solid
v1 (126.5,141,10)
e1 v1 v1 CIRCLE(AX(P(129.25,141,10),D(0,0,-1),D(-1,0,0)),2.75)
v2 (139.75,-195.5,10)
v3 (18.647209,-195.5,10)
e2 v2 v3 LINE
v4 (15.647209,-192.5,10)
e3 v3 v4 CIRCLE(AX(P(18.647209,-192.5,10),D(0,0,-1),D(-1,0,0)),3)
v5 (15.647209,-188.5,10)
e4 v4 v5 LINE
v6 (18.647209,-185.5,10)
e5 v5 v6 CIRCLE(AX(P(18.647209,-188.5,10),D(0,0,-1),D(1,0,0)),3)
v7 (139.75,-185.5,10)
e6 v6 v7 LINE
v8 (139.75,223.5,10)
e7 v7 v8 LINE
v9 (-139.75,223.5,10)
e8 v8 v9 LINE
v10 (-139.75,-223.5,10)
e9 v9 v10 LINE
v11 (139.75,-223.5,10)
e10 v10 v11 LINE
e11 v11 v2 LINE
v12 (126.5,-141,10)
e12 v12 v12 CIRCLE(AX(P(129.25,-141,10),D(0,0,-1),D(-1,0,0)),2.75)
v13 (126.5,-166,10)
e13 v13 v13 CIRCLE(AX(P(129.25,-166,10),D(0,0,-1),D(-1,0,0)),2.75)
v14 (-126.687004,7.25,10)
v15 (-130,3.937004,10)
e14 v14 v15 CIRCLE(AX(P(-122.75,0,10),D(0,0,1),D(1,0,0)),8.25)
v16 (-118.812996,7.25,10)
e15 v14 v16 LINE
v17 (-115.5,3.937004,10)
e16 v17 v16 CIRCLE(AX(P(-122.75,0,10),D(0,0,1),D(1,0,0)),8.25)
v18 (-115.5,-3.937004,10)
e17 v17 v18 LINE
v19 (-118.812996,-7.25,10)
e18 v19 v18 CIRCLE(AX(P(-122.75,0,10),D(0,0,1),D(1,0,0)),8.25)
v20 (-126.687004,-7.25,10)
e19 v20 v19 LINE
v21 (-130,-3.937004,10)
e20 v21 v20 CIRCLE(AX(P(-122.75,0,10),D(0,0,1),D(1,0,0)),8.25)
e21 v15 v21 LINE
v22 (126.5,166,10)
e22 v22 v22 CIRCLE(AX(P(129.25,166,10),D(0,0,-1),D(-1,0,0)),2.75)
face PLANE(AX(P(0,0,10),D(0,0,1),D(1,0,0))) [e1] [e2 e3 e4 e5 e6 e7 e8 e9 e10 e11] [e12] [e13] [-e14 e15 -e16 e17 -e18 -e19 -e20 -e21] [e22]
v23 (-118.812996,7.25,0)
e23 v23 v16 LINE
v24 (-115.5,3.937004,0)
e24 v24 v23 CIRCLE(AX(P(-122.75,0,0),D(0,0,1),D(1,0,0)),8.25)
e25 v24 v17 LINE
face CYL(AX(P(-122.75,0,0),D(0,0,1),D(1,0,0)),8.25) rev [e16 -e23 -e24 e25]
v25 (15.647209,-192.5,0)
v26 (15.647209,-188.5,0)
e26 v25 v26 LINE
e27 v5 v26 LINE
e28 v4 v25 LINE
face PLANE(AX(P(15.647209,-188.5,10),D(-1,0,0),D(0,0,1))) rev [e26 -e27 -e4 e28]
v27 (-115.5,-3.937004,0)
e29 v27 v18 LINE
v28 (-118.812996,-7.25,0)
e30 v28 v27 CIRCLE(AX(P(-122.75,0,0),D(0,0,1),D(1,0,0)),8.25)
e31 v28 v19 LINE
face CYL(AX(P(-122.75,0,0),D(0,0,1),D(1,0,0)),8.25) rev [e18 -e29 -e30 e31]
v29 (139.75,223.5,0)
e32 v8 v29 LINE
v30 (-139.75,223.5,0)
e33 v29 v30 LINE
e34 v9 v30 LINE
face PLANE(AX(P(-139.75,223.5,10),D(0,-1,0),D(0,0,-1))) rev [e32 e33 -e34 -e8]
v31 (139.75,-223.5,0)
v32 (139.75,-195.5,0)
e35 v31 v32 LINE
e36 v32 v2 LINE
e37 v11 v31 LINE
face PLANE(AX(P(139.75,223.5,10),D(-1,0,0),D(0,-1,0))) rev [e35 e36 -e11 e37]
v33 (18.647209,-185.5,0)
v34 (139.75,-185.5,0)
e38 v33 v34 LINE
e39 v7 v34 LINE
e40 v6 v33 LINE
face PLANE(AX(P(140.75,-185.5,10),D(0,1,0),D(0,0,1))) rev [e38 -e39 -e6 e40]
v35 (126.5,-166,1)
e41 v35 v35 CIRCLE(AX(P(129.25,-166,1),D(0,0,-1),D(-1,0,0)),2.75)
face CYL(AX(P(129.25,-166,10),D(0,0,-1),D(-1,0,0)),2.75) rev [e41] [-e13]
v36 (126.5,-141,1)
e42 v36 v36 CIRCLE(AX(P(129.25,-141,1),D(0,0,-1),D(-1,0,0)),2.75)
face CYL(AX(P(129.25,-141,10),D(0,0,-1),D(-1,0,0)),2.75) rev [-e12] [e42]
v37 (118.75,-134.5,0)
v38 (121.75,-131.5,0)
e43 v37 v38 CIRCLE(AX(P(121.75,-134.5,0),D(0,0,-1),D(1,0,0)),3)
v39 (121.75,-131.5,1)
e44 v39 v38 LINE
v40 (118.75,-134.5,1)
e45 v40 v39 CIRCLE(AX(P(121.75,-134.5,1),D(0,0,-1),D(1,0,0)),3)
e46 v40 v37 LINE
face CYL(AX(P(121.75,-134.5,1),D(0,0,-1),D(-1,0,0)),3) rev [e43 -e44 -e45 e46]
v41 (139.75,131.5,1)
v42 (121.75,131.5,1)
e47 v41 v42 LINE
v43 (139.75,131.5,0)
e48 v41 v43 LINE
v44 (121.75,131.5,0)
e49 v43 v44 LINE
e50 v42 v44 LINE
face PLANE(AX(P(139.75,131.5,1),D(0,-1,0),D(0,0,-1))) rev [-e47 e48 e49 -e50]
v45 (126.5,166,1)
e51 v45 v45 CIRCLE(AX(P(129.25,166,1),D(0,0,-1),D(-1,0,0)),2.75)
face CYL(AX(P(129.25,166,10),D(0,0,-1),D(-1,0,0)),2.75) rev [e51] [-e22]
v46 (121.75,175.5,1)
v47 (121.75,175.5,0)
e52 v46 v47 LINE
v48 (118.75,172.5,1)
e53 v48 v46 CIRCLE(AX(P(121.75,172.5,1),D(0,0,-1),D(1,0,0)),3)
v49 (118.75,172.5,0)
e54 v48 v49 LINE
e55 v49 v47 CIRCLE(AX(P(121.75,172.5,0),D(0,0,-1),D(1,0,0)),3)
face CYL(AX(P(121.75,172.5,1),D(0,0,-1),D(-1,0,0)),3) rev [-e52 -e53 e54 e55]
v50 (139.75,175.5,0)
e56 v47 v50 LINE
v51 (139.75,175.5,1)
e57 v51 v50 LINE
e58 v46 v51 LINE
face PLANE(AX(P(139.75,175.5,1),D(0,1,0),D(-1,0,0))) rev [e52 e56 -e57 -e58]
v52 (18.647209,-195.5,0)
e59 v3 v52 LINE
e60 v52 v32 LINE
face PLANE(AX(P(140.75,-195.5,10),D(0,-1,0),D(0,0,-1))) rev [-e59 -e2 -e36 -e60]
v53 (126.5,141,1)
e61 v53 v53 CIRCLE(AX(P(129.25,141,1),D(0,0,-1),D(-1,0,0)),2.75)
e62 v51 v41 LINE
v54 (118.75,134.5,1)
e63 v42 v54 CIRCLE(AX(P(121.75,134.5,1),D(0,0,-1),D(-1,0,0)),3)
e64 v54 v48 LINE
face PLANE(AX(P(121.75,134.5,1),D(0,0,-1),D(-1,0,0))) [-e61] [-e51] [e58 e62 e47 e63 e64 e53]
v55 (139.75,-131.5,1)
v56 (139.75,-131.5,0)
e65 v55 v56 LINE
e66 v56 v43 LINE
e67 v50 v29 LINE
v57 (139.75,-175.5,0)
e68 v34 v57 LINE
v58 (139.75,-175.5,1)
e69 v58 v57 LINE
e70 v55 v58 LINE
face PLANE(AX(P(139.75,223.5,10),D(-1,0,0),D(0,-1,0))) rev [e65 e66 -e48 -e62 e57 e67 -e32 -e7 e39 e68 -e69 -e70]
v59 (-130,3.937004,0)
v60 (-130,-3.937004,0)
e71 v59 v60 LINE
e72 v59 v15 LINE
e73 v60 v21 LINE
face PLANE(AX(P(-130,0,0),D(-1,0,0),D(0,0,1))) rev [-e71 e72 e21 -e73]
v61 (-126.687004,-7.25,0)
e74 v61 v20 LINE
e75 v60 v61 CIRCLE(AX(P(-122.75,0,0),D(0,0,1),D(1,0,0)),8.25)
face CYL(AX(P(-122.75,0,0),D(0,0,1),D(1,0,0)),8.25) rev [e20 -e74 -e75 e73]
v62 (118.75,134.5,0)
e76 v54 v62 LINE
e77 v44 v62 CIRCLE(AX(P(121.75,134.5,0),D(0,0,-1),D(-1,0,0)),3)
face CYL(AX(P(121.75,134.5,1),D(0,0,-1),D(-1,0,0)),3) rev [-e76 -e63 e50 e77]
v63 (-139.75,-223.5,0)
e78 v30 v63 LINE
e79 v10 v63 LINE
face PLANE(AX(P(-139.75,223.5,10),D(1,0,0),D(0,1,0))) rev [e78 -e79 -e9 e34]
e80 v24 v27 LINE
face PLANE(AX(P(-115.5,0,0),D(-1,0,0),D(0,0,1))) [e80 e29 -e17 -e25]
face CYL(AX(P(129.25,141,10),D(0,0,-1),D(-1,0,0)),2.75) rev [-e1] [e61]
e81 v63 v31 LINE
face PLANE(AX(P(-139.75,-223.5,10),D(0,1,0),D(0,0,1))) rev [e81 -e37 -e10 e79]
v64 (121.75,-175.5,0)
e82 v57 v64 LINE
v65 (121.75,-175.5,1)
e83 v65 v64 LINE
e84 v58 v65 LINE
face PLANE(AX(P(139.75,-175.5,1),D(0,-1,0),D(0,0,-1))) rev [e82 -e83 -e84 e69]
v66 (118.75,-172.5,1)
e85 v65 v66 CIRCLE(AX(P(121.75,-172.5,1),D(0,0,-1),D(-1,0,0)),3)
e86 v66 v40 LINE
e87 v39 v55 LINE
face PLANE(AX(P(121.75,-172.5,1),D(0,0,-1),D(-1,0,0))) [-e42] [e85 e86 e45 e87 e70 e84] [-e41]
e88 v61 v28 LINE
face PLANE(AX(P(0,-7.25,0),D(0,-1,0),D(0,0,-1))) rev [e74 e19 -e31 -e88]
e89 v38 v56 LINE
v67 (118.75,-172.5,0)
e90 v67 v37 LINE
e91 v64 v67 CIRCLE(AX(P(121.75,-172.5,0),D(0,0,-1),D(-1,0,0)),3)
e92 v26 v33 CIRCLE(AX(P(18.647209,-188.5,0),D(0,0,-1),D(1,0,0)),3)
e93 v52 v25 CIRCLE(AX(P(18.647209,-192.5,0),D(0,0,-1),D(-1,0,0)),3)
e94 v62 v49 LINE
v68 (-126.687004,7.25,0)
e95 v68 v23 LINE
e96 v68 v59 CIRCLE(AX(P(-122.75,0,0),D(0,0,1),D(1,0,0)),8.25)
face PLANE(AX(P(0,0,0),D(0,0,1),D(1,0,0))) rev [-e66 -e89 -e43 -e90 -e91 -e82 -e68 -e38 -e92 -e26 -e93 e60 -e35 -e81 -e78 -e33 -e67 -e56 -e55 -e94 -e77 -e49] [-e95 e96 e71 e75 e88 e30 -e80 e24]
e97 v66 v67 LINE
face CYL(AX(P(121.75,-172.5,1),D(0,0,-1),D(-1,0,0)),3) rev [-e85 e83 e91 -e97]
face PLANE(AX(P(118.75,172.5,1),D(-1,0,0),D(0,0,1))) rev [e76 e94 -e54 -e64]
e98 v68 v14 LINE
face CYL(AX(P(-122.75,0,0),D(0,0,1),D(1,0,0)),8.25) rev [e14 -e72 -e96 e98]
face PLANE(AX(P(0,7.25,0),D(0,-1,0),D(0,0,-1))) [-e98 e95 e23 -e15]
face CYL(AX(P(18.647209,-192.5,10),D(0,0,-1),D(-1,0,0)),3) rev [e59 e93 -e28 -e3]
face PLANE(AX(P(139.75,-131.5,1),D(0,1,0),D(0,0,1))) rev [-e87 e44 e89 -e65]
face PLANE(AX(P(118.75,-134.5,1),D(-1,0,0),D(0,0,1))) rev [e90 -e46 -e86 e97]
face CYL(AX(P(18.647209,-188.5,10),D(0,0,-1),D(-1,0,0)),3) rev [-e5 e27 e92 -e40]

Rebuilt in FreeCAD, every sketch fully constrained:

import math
import FreeCAD as App
import Part
import Sketcher

V = App.Vector


def add_polygon(sketch, points):
    """Adds a closed chain of lines whose ends are joined by coincident constraints."""
    first, n = sketch.GeometryCount, len(points)
    for a, b in zip(points, points[1:] + points[:1]):
        sketch.addGeometry(Part.LineSegment(App.Vector(*a, 0), App.Vector(*b, 0)), False)
    for i in range(n):
        sketch.addConstraint(Sketcher.Constraint("Coincident", first + i, 2, first + (i + 1) % n, 1))

doc = App.newDocument("Part")
body = doc.addObject("PartDesign::Body", "Body")

# Sketch on XY plane
sketch1 = body.newObject("Sketcher::SketchObject", "Sketch")
sketch1.AttachmentSupport = (doc.getObject("XY_Plane"), [""])
sketch1.MapMode = "FlatFace"
add_polygon(sketch1, [(-140, 224), (-140, -224), (140, -224), (140, 224)])  # lines 0-3
sketch1.addConstraint(Sketcher.Constraint("Vertical", 0))
sketch1.addConstraint(Sketcher.Constraint("Horizontal", 1))
sketch1.addConstraint(Sketcher.Constraint("Vertical", 2))
sketch1.addConstraint(Sketcher.Constraint("Horizontal", 3))
sketch1.addConstraint(Sketcher.Constraint("Symmetric", 0, 2, 2, 2, -1, 1))
sketch1.addConstraint(Sketcher.Constraint("DistanceY", 0, 2, 0, 1, 447.0))
sketch1.addConstraint(Sketcher.Constraint("DistanceX", 1, 1, 1, 2, 279.5))
pad1 = body.newObject("PartDesign::Pad", "Pad")
pad1.Profile = sketch1
pad1.Length = 10

# Sketch on XY plane
sketch2 = body.newObject("Sketcher::SketchObject", "Sketch001")
sketch2.AttachmentSupport = (doc.getObject("XY_Plane"), [""])
sketch2.MapMode = "FlatFace"
sketch2.addGeometry(Part.LineSegment(V(121.8, 175.5, 0), V(139.8, 175.5, 0)), False)
sketch2.addGeometry(Part.LineSegment(V(139.8, 175.5, 0), V(139.8, 131.5, 0)), False)
sketch2.addGeometry(Part.LineSegment(V(139.8, 131.5, 0), V(121.8, 131.5, 0)), False)
sketch2.addGeometry(Part.ArcOfCircle(Part.Circle(V(121.7, 134.5, 0), V(0, 0, 1), 3), math.radians(180), math.radians(270)), False)
sketch2.addGeometry(Part.LineSegment(V(118.8, 134.5, 0), V(118.8, 172.5, 0)), False)
sketch2.addGeometry(Part.ArcOfCircle(Part.Circle(V(121.7, 172.5, 0), V(0, 0, 1), 3), math.radians(90), math.radians(180)), False)
sketch2.addGeometry(Part.LineSegment(V(121.8, -131.5, 0), V(139.8, -131.5, 0)), False)
sketch2.addGeometry(Part.LineSegment(V(139.8, -131.5, 0), V(139.8, -175.5, 0)), False)
sketch2.addGeometry(Part.LineSegment(V(139.8, -175.5, 0), V(121.8, -175.5, 0)), False)
sketch2.addGeometry(Part.ArcOfCircle(Part.Circle(V(121.7, -172.5, 0), V(0, 0, 1), 3), math.radians(180), math.radians(270)), False)
sketch2.addGeometry(Part.LineSegment(V(118.8, -172.5, 0), V(118.8, -134.5, 0)), False)
sketch2.addGeometry(Part.ArcOfCircle(Part.Circle(V(121.7, -134.5, 0), V(0, 0, 1), 3), math.radians(90), math.radians(180)), False)
sketch2.addConstraint(Sketcher.Constraint("Coincident", 0, 2, 1, 1))
sketch2.addConstraint(Sketcher.Constraint("Coincident", 1, 2, 2, 1))
sketch2.addConstraint(Sketcher.Constraint("Tangent", 2, 2, 3, 2))
sketch2.addConstraint(Sketcher.Constraint("Tangent", 3, 1, 4, 1))
sketch2.addConstraint(Sketcher.Constraint("Tangent", 4, 2, 5, 2))
sketch2.addConstraint(Sketcher.Constraint("Tangent", 5, 1, 0, 1))
sketch2.addConstraint(Sketcher.Constraint("Coincident", 6, 2, 7, 1))
sketch2.addConstraint(Sketcher.Constraint("Coincident", 7, 2, 8, 1))
sketch2.addConstraint(Sketcher.Constraint("Tangent", 8, 2, 9, 2))
sketch2.addConstraint(Sketcher.Constraint("Tangent", 9, 1, 10, 1))
sketch2.addConstraint(Sketcher.Constraint("Tangent", 10, 2, 11, 2))
sketch2.addConstraint(Sketcher.Constraint("Tangent", 11, 1, 6, 1))
sketch2.addConstraint(Sketcher.Constraint("Horizontal", 0))
sketch2.addConstraint(Sketcher.Constraint("Vertical", 1))
sketch2.addConstraint(Sketcher.Constraint("Horizontal", 2))
sketch2.addConstraint(Sketcher.Constraint("Vertical", 4))
sketch2.addConstraint(Sketcher.Constraint("Horizontal", 6))
sketch2.addConstraint(Sketcher.Constraint("Vertical", 7))
sketch2.addConstraint(Sketcher.Constraint("Horizontal", 8))
sketch2.addConstraint(Sketcher.Constraint("Vertical", 10))
sketch2.addConstraint(Sketcher.Constraint("Equal", 3, 5))
sketch2.addConstraint(Sketcher.Constraint("Equal", 5, 9))
sketch2.addConstraint(Sketcher.Constraint("Equal", 9, 11))
sketch2.addConstraint(Sketcher.Constraint("Symmetric", 5, 3, 9, 3, -1))
sketch2.addConstraint(Sketcher.Constraint("Symmetric", 1, 2, 6, 2, -1))
sketch2.addConstraint(Sketcher.Constraint("Radius", 3, 3.0))
sketch2.addConstraint(Sketcher.Constraint("DistanceX", 0, 1, 0, 2, 18.0))
sketch2.addConstraint(Sketcher.Constraint("DistanceY", 1, 2, 1, 1, 44.0))
sketch2.addConstraint(Sketcher.Constraint("DistanceY", 9, 3, 3, 3, 307.0))
sketch2.addConstraint(Sketcher.Constraint("DistanceX", -1, 1, 3, 3, 121.75))
pocket1 = body.newObject("PartDesign::Pocket", "Pocket")
pocket1.Profile = sketch2
pocket1.Length = 1
pocket1.Reversed = True

# Sketch on XY plane
sketch3 = body.newObject("Sketcher::SketchObject", "Sketch002")
sketch3.AttachmentSupport = (doc.getObject("XY_Plane"), [""])
sketch3.MapMode = "FlatFace"
sketch3.AttachmentOffset = App.Placement(V(0, 0, 1), App.Rotation())
sketch3.addGeometry(Part.Circle(V(129.2, 166, 0), V(0, 0, 1), 2.8), False)
sketch3.addGeometry(Part.Circle(V(129.2, 141, 0), V(0, 0, 1), 2.8), False)
sketch3.addGeometry(Part.Circle(V(129.2, -141, 0), V(0, 0, 1), 2.8), False)
sketch3.addGeometry(Part.Circle(V(129.2, -166, 0), V(0, 0, 1), 2.8), False)
sketch3.addConstraint(Sketcher.Constraint("Equal", 0, 1))
sketch3.addConstraint(Sketcher.Constraint("Equal", 1, 2))
sketch3.addConstraint(Sketcher.Constraint("Equal", 2, 3))
sketch3.addConstraint(Sketcher.Constraint("Symmetric", 1, 3, 2, 3, -1))
sketch3.addConstraint(Sketcher.Constraint("Symmetric", 0, 3, 3, 3, -1))
sketch3.addConstraint(Sketcher.Constraint("Vertical", 0, 3, 1, 3))
sketch3.addConstraint(Sketcher.Constraint("Diameter", 0, 5.5))
sketch3.addConstraint(Sketcher.Constraint("DistanceY", -1, 1, 0, 3, 166.0))
sketch3.addConstraint(Sketcher.Constraint("DistanceY", -1, 1, 1, 3, 141.0))
sketch3.addConstraint(Sketcher.Constraint("DistanceX", -1, 1, 0, 3, 129.25))
pocket2 = body.newObject("PartDesign::Pocket", "Pocket001")
pocket2.Profile = sketch3
pocket2.Type = "ThroughAll"
pocket2.Reversed = True

# Sketch on XY plane
sketch4 = body.newObject("Sketcher::SketchObject", "Sketch003")
sketch4.AttachmentSupport = (doc.getObject("XY_Plane"), [""])
sketch4.MapMode = "FlatFace"
sketch4.addGeometry(Part.LineSegment(V(18.6, -185.5, 0), V(140.8, -185.5, 0)), False)
sketch4.addGeometry(Part.LineSegment(V(140.8, -185.5, 0), V(140.8, -195.5, 0)), False)
sketch4.addGeometry(Part.LineSegment(V(140.8, -195.5, 0), V(18.6, -195.5, 0)), False)
sketch4.addGeometry(Part.ArcOfCircle(Part.Circle(V(18.6, -192.5, 0), V(0, 0, 1), 3), math.radians(180), math.radians(270)), False)
sketch4.addGeometry(Part.LineSegment(V(15.6, -192.5, 0), V(15.6, -188.5, 0)), False)
sketch4.addGeometry(Part.ArcOfCircle(Part.Circle(V(18.6, -188.5, 0), V(0, 0, 1), 3), math.radians(90), math.radians(180)), False)
sketch4.addConstraint(Sketcher.Constraint("Coincident", 0, 2, 1, 1))
sketch4.addConstraint(Sketcher.Constraint("Coincident", 1, 2, 2, 1))
sketch4.addConstraint(Sketcher.Constraint("Tangent", 2, 2, 3, 2))
sketch4.addConstraint(Sketcher.Constraint("Tangent", 3, 1, 4, 1))
sketch4.addConstraint(Sketcher.Constraint("Tangent", 4, 2, 5, 2))
sketch4.addConstraint(Sketcher.Constraint("Tangent", 5, 1, 0, 1))
sketch4.addConstraint(Sketcher.Constraint("Horizontal", 0))
sketch4.addConstraint(Sketcher.Constraint("Vertical", 1))
sketch4.addConstraint(Sketcher.Constraint("Horizontal", 2))
sketch4.addConstraint(Sketcher.Constraint("Vertical", 4))
sketch4.addConstraint(Sketcher.Constraint("Equal", 3, 5))
sketch4.addConstraint(Sketcher.Constraint("Radius", 3, 3.0))
sketch4.addConstraint(Sketcher.Constraint("DistanceY", 1, 2, 1, 1, 10.0))
sketch4.addConstraint(Sketcher.Constraint("DistanceY", 3, 3, -1, 1, 192.5))
sketch4.addConstraint(Sketcher.Constraint("DistanceX", -1, 1, 0, 2, 140.75))
sketch4.addConstraint(Sketcher.Constraint("DistanceX", 0, 1, 0, 2, 122.102791))
pocket3 = body.newObject("PartDesign::Pocket", "Pocket002")
pocket3.Profile = sketch4
pocket3.Type = "ThroughAll"
pocket3.Reversed = True

# Sketch on XY plane
sketch5 = body.newObject("Sketcher::SketchObject", "Sketch004")
sketch5.AttachmentSupport = (doc.getObject("XY_Plane"), [""])
sketch5.MapMode = "FlatFace"
sketch5.AttachmentOffset = App.Placement(V(0, 0, 10), App.Rotation())
sketch5.addGeometry(Part.LineSegment(V(-118.8, 7.2, 0), V(-126.7, 7.2, 0)), False)
sketch5.addGeometry(Part.ArcOfCircle(Part.Circle(V(-122.8, 0, 0), V(0, 0, 1), 8.2), math.radians(119), math.radians(151)), False)
sketch5.addGeometry(Part.LineSegment(V(-130, 3.9, 0), V(-130, -3.9, 0)), False)
sketch5.addGeometry(Part.ArcOfCircle(Part.Circle(V(-122.8, 0, 0), V(0, 0, 1), 8.2), math.radians(-151), math.radians(-119)), False)
sketch5.addGeometry(Part.LineSegment(V(-126.7, -7.2, 0), V(-118.8, -7.2, 0)), False)
sketch5.addGeometry(Part.ArcOfCircle(Part.Circle(V(-122.7, 0, 0), V(0, 0, 1), 8.2), math.radians(-61), math.radians(-29)), False)
sketch5.addGeometry(Part.LineSegment(V(-115.5, -3.9, 0), V(-115.5, 3.9, 0)), False)
sketch5.addGeometry(Part.ArcOfCircle(Part.Circle(V(-122.7, 0, 0), V(0, 0, 1), 8.2), math.radians(29), math.radians(61)), False)
sketch5.addConstraint(Sketcher.Constraint("Coincident", 0, 2, 1, 1))
sketch5.addConstraint(Sketcher.Constraint("Coincident", 1, 2, 2, 1))
sketch5.addConstraint(Sketcher.Constraint("Coincident", 2, 2, 3, 1))
sketch5.addConstraint(Sketcher.Constraint("Coincident", 3, 2, 4, 1))
sketch5.addConstraint(Sketcher.Constraint("Coincident", 4, 2, 5, 1))
sketch5.addConstraint(Sketcher.Constraint("Coincident", 5, 2, 6, 1))
sketch5.addConstraint(Sketcher.Constraint("Coincident", 6, 2, 7, 1))
sketch5.addConstraint(Sketcher.Constraint("Coincident", 7, 2, 0, 1))
sketch5.addConstraint(Sketcher.Constraint("Horizontal", 0))
sketch5.addConstraint(Sketcher.Constraint("Vertical", 2))
sketch5.addConstraint(Sketcher.Constraint("Horizontal", 4))
sketch5.addConstraint(Sketcher.Constraint("Vertical", 6))
sketch5.addConstraint(Sketcher.Constraint("Coincident", 3, 3, 1, 3))
sketch5.addConstraint(Sketcher.Constraint("Coincident", 5, 3, 1, 3))
sketch5.addConstraint(Sketcher.Constraint("Coincident", 7, 3, 1, 3))
sketch5.addConstraint(Sketcher.Constraint("Equal", 1, 3))
sketch5.addConstraint(Sketcher.Constraint("Equal", 3, 5))
sketch5.addConstraint(Sketcher.Constraint("Equal", 5, 7))
sketch5.addConstraint(Sketcher.Constraint("Symmetric", 0, 2, 3, 2, -1))
sketch5.addConstraint(Sketcher.Constraint("Horizontal", 2, 2, 5, 2))
sketch5.addConstraint(Sketcher.Constraint("Equal", 4, 2))
sketch5.addConstraint(Sketcher.Constraint("Radius", 1, 8.25))
sketch5.addConstraint(Sketcher.Constraint("DistanceX", 1, 2, -1, 1, 130.0))
sketch5.addConstraint(Sketcher.Constraint("DistanceX", 5, 2, -1, 1, 115.5))
pocket4 = body.newObject("PartDesign::Pocket", "Pocket003")
pocket4.Profile = sketch5
pocket4.Type = "ThroughAll"

doc.recompute()
